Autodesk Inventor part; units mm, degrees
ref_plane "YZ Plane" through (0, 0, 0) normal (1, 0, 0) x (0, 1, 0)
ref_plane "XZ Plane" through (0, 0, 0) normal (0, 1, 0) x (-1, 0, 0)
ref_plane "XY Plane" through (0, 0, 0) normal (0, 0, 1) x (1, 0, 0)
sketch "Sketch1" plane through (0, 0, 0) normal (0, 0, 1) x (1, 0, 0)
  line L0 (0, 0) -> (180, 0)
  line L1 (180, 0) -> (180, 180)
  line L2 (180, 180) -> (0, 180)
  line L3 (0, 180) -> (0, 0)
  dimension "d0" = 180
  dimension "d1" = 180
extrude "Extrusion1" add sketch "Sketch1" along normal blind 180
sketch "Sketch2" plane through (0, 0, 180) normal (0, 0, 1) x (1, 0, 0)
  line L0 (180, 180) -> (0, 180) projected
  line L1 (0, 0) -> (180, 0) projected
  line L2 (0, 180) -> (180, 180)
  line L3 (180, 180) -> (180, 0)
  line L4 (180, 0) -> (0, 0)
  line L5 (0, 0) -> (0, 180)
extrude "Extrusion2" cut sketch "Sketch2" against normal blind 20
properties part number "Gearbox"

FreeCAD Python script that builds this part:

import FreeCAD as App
import Part
import Sketcher
Q = App.Units.Quantity

doc = App.newDocument("Part")
params = doc.addObject("Spreadsheet::Sheet", "Params")
for row, (alias, value) in enumerate([
    ("sketch1_width", "180 mm"),
    ("pad1_length", "180 mm"),
    ("sketch2_width", "180 mm"),
    ("pocket1_length", "20 mm"),
], start=1):
    params.set(f"A{row}", alias)
    params.set(f"B{row}", "=" + value)
    params.setAlias(f"B{row}", alias)

body = doc.addObject("PartDesign::Body", "Body")

# Sketch on XY plane
sketch1 = body.newObject("Sketcher::SketchObject", "Sketch")
sketch1.AttachmentSupport = (doc.getObject("XY_Plane"), [""])
sketch1.MapMode = "FlatFace"
sketch1.addGeometry([
    Part.LineSegment(App.Vector(0, 180, 0), App.Vector(0, 0, 0)),
    Part.LineSegment(App.Vector(0, 0, 0), App.Vector(180, 0, 0)),
    Part.LineSegment(App.Vector(180, 0, 0), App.Vector(180, 180, 0)),
    Part.LineSegment(App.Vector(180, 180, 0), App.Vector(0, 180, 0)),
], False)
sketch1.addConstraint([
    Sketcher.Constraint("Coincident", 0, 2, 1, 1),
    Sketcher.Constraint("Coincident", 1, 2, 2, 1),
    Sketcher.Constraint("Coincident", 2, 2, 3, 1),
    Sketcher.Constraint("Coincident", 3, 2, 0, 1),
    Sketcher.Constraint("Vertical", 0),
    Sketcher.Constraint("Horizontal", 1),
    Sketcher.Constraint("Vertical", 2),
    Sketcher.Constraint("Horizontal", 3),
    Sketcher.Constraint("Coincident", 0, 2, -1, 1),
    Sketcher.Constraint("Equal", 3, 0),
    Sketcher.Constraint("DistanceX", 1, 1, 1, 2, Q("180 mm")),
])
sketch1.setExpression("Constraints[10]", "Params.sketch1_width")
pad1 = body.newObject("PartDesign::Pad", "Pad")
pad1.Profile = sketch1
pad1.setExpression("Length", "Params.pad1_length")

# Sketch on XY plane
sketch2 = body.newObject("Sketcher::SketchObject", "Sketch001")
sketch2.AttachmentSupport = (doc.getObject("XY_Plane"), [""])
sketch2.MapMode = "FlatFace"
sketch2.AttachmentOffset = App.Placement(App.Vector(0, 0, 180), App.Rotation())
sketch2.addGeometry([
    Part.LineSegment(App.Vector(180, 0, 0), App.Vector(180, 180, 0)),
    Part.LineSegment(App.Vector(180, 180, 0), App.Vector(0, 180, 0)),
    Part.LineSegment(App.Vector(0, 180, 0), App.Vector(0, 0, 0)),
    Part.LineSegment(App.Vector(0, 0, 0), App.Vector(180, 0, 0)),
], False)
sketch2.addConstraint([
    Sketcher.Constraint("Coincident", 0, 2, 1, 1),
    Sketcher.Constraint("Coincident", 1, 2, 2, 1),
    Sketcher.Constraint("Coincident", 2, 2, 3, 1),
    Sketcher.Constraint("Coincident", 3, 2, 0, 1),
    Sketcher.Constraint("Vertical", 0),
    Sketcher.Constraint("Horizontal", 1),
    Sketcher.Constraint("Vertical", 2),
    Sketcher.Constraint("Horizontal", 3),
    Sketcher.Constraint("Coincident", 2, 2, -1, 1),
    Sketcher.Constraint("Equal", 3, 0),
    Sketcher.Constraint("DistanceX", 1, 2, 1, 1, Q("180 mm")),
])
sketch2.setExpression("Constraints[10]", "Params.sketch2_width")
pocket1 = body.newObject("PartDesign::Pocket", "Pocket")
pocket1.Profile = sketch2
pocket1.setExpression("Length", "Params.pocket1_length")

doc.recompute()
